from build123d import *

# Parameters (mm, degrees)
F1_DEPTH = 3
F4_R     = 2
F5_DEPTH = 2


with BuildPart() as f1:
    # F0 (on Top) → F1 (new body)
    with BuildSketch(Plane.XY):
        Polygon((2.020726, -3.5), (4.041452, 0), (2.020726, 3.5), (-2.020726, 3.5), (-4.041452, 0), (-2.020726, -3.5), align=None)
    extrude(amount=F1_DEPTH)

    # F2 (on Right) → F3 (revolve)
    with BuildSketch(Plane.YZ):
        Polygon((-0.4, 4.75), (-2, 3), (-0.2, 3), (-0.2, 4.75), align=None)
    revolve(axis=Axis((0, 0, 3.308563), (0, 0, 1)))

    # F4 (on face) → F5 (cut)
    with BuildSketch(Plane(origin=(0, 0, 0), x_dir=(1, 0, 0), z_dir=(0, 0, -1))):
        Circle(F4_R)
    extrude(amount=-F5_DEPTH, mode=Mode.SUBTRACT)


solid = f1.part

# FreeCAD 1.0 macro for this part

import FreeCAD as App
import Part
import Sketcher
Q = App.Units.Quantity

doc = App.newDocument("Part")
body = doc.addObject("PartDesign::Body", "Body")

sketch1 = body.newObject("Sketcher::SketchObject", "Sketch")
sketch1.AttachmentSupport = (doc.getObject("XY_Plane"), [""])
sketch1.MapMode = "FlatFace"
sketch1.addGeometry([
    Part.LineSegment(App.Vector(2.020726, -3.5, 0), App.Vector(4.041452, 0, 0)),
    Part.LineSegment(App.Vector(4.041452, 0, 0), App.Vector(2.020726, 3.5, 0)),
    Part.LineSegment(App.Vector(2.020726, 3.5, 0), App.Vector(-2.020726, 3.5, 0)),
    Part.LineSegment(App.Vector(-2.020726, 3.5, 0), App.Vector(-4.041452, 0, 0)),
    Part.LineSegment(App.Vector(-4.041452, 0, 0), App.Vector(-2.020726, -3.5, 0)),
    Part.LineSegment(App.Vector(-2.020726, -3.5, 0), App.Vector(2.020726, -3.5, 0)),
], False)
sketch1.addConstraint([
    Sketcher.Constraint("Coincident", 0, 2, 1, 1),
    Sketcher.Constraint("Coincident", 1, 2, 2, 1),
    Sketcher.Constraint("Coincident", 2, 2, 3, 1),
    Sketcher.Constraint("Coincident", 3, 2, 4, 1),
    Sketcher.Constraint("Coincident", 4, 2, 5, 1),
    Sketcher.Constraint("Coincident", 5, 2, 0, 1),
    Sketcher.Constraint("Horizontal", 2),
    Sketcher.Constraint("Horizontal", 5),
    Sketcher.Constraint("Symmetric", 0, 2, 3, 2, -1, 1),
    Sketcher.Constraint("Symmetric", 1, 2, 4, 2, -1, 1),
    Sketcher.Constraint("PointOnObject", 0, 2, -1),
    Sketcher.Constraint("Parallel", 0, 3),
    Sketcher.Constraint("Vertical", 2, 2, 4, 2),
    Sketcher.Constraint("Angle", 0, Q("59.999999 deg")),
    Sketcher.Constraint("DistanceY", 4, 2, 2, 2, Q("7 mm")),
    Sketcher.Constraint("DistanceX", 2, 2, 2, 1, Q("4.041452 mm")),
])
pad1 = body.newObject("PartDesign::Pad", "Pad")
pad1.Profile = sketch1
pad1.Length = 3

sketch2 = body.newObject("Sketcher::SketchObject", "Sketch001")
sketch2.AttachmentSupport = (doc.getObject("YZ_Plane"), [""])
sketch2.MapMode = "FlatFace"
sketch2.addGeometry([
    Part.LineSegment(App.Vector(-0.4, 4.75, 0), App.Vector(-2, 3, 0)),
    Part.LineSegment(App.Vector(-2, 3, 0), App.Vector(-0.2, 3, 0)),
    Part.LineSegment(App.Vector(-0.2, 3, 0), App.Vector(-0.2, 4.75, 0)),
    Part.LineSegment(App.Vector(-0.2, 4.75, 0), App.Vector(-0.4, 4.75, 0)),
], False)
sketch2.addConstraint([
    Sketcher.Constraint("Coincident", 0, 2, 1, 1),
    Sketcher.Constraint("Coincident", 1, 2, 2, 1),
    Sketcher.Constraint("Coincident", 2, 2, 3, 1),
    Sketcher.Constraint("Coincident", 3, 2, 0, 1),
    Sketcher.Constraint("Horizontal", 1),
    Sketcher.Constraint("Vertical", 2),
    Sketcher.Constraint("Horizontal", 3),
    Sketcher.Constraint("DistanceX", 1, 1, 1, 2, Q("1.8 mm")),
    Sketcher.Constraint("DistanceX", 3, 2, 3, 1, Q("0.2 mm")),
    Sketcher.Constraint("DistanceX", 0, 2, -1, 1, Q("2 mm")),
    Sketcher.Constraint("DistanceY", -1, 1, 0, 2, Q("3 mm")),
    Sketcher.Constraint("DistanceY", 2, 1, 2, 2, Q("1.75 mm")),
])
revolution = body.newObject("PartDesign::Revolution", "Revolution")
revolution.Profile = sketch2
revolution.ReferenceAxis = (sketch2, ["V_Axis"])
revolution.Angle = 360

sketch3 = body.newObject("Sketcher::SketchObject", "Sketch002")
sketch3.AttachmentSupport = (doc.getObject("XY_Plane"), [""])
sketch3.MapMode = "FlatFace"
sketch3.addGeometry(Part.Circle(App.Vector(0, 0, 0), App.Vector(0, 0, 1), 2), False)
sketch3.addConstraint([
    Sketcher.Constraint("Coincident", 0, 3, -1, 1),
    Sketcher.Constraint("Diameter", 0, Q("4 mm")),
])
pocket1 = body.newObject("PartDesign::Pocket", "Pocket")
pocket1.Profile = sketch3
pocket1.Length = 2
pocket1.Reversed = True

doc.recompute()
